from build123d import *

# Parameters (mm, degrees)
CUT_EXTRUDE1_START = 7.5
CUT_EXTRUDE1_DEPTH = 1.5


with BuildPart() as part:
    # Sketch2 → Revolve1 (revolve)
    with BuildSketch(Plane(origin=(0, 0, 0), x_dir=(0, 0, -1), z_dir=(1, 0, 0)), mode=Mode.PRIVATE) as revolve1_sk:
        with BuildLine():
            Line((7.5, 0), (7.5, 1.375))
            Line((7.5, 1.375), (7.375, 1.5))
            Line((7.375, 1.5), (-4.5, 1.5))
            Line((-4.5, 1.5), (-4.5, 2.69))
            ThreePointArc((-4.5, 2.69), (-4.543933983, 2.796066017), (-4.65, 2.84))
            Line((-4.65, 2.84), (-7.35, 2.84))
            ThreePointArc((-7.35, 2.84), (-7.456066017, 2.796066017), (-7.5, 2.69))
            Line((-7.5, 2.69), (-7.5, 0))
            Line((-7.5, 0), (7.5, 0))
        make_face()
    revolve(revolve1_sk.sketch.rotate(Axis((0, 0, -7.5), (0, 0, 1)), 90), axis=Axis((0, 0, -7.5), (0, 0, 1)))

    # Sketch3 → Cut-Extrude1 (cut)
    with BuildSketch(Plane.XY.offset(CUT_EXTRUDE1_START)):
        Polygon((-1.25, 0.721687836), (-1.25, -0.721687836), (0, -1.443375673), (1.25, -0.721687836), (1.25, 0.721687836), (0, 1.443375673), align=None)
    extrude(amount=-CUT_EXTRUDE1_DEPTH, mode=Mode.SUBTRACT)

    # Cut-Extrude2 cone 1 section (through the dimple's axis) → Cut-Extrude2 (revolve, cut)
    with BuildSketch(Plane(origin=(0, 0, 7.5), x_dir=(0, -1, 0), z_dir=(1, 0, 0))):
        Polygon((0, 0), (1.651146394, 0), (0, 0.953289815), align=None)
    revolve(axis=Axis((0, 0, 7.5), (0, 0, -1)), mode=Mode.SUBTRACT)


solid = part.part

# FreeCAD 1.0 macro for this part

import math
import FreeCAD as App
import Part
import Sketcher

V = App.Vector
Q = App.Units.Quantity


def add_polygon(sketch, points):
    """Adds a closed chain of lines whose ends are joined by coincident constraints."""
    first, n = sketch.GeometryCount, len(points)
    for a, b in zip(points, points[1:] + points[:1]):
        sketch.addGeometry(Part.LineSegment(App.Vector(*a, 0), App.Vector(*b, 0)), False)
    for i in range(n):
        sketch.addConstraint(Sketcher.Constraint("Coincident", first + i, 2, first + (i + 1) % n, 1))

doc = App.newDocument("Part")
body = doc.addObject("PartDesign::Body", "Body")

# Sketch on YZ plane
sketch1 = body.newObject("Sketcher::SketchObject", "Sketch")
sketch1.AttachmentSupport = (doc.getObject("YZ_Plane"), [""])
sketch1.MapMode = "FlatFace"
sketch1.addGeometry(Part.LineSegment(V(0, -7.5, 0), V(1.38, -7.5, 0)), False)
sketch1.addGeometry(Part.LineSegment(V(1.38, -7.5, 0), V(1.5, -7.38, 0)), False)
sketch1.addGeometry(Part.LineSegment(V(1.5, -7.38, 0), V(1.5, 4.5, 0)), False)
sketch1.addGeometry(Part.LineSegment(V(1.5, 4.5, 0), V(2.69, 4.5, 0)), False)
sketch1.addGeometry(Part.ArcOfCircle(Part.Circle(V(2.69, 4.65, 0), V(0, 0, 1), 0.15), math.radians(-90), math.radians(0)), False)
sketch1.addGeometry(Part.LineSegment(V(2.84, 4.65, 0), V(2.84, 7.35, 0)), False)
sketch1.addGeometry(Part.ArcOfCircle(Part.Circle(V(2.69, 7.35, 0), V(0, 0, 1), 0.15), math.radians(0), math.radians(90)), False)
sketch1.addGeometry(Part.LineSegment(V(2.69, 7.5, 0), V(0, 7.5, 0)), False)
sketch1.addGeometry(Part.LineSegment(V(0, 7.5, 0), V(0, -7.5, 0)), False)
sketch1.addConstraint(Sketcher.Constraint("Coincident", 0, 2, 1, 1))
sketch1.addConstraint(Sketcher.Constraint("Coincident", 1, 2, 2, 1))
sketch1.addConstraint(Sketcher.Constraint("Coincident", 2, 2, 3, 1))
sketch1.addConstraint(Sketcher.Constraint("Tangent", 3, 2, 4, 1))
sketch1.addConstraint(Sketcher.Constraint("Tangent", 4, 2, 5, 1))
sketch1.addConstraint(Sketcher.Constraint("Tangent", 5, 2, 6, 1))
sketch1.addConstraint(Sketcher.Constraint("Tangent", 6, 2, 7, 1))
sketch1.addConstraint(Sketcher.Constraint("Coincident", 7, 2, 8, 1))
sketch1.addConstraint(Sketcher.Constraint("Coincident", 8, 2, 0, 1))
sketch1.addConstraint(Sketcher.Constraint("Horizontal", 0))
sketch1.addConstraint(Sketcher.Constraint("Vertical", 2))
sketch1.addConstraint(Sketcher.Constraint("Horizontal", 3))
sketch1.addConstraint(Sketcher.Constraint("Vertical", 5))
sketch1.addConstraint(Sketcher.Constraint("Horizontal", 7))
sketch1.addConstraint(Sketcher.Constraint("Vertical", 8))
sketch1.addConstraint(Sketcher.Constraint("Equal", 4, 6))
sketch1.addConstraint(Sketcher.Constraint("Symmetric", 7, 2, 8, 2, -1, 1))
sketch1.addConstraint(Sketcher.Constraint("DistanceY", 8, 2, 8, 1, Q("15 mm")))
sketch1.addConstraint(Sketcher.Constraint("Angle", 1, Q("45 deg")))
sketch1.addConstraint(Sketcher.Constraint("Radius", 4, Q("0.15 mm")))
sketch1.addConstraint(Sketcher.Constraint("DistanceY", 5, 1, 5, 2, Q("2.7 mm")))
sketch1.addConstraint(Sketcher.Constraint("DistanceX", 3, 1, 3, 2, Q("1.19 mm")))
sketch1.addConstraint(Sketcher.Constraint("DistanceX", 7, 2, 7, 1, Q("2.69 mm")))
sketch1.addConstraint(Sketcher.Constraint("DistanceX", 0, 1, 0, 2, Q("1.375 mm")))
revolution = body.newObject("PartDesign::Revolution", "Revolution")
revolution.Profile = sketch1
revolution.ReferenceAxis = (sketch1, ["V_Axis"])
revolution.Angle = 360

# Sketch on XY plane
sketch2 = body.newObject("Sketcher::SketchObject", "Sketch001")
sketch2.AttachmentSupport = (doc.getObject("XY_Plane"), [""])
sketch2.MapMode = "FlatFace"
sketch2.AttachmentOffset = App.Placement(V(0, 0, 7.5), App.Rotation())
add_polygon(sketch2, [(-1.2, 0.7), (-1.2, -0.7), (0, -1.4), (1.2, -0.7), (1.2, 0.7), (0, 1.4)])  # lines 0-5
sketch2.addConstraint(Sketcher.Constraint("Vertical", 0))
sketch2.addConstraint(Sketcher.Constraint("Vertical", 3))
sketch2.addConstraint(Sketcher.Constraint("Symmetric", 0, 2, 3, 2, -1, 1))
sketch2.addConstraint(Sketcher.Constraint("Symmetric", 1, 2, 4, 2, -1, 1))
sketch2.addConstraint(Sketcher.Constraint("PointOnObject", 1, 2, -2))
sketch2.addConstraint(Sketcher.Constraint("Parallel", 2, 5))
sketch2.addConstraint(Sketcher.Constraint("Horizontal", 0, 2, 2, 2))
sketch2.addConstraint(Sketcher.Constraint("Angle", 1, Q("-30 deg")))
sketch2.addConstraint(Sketcher.Constraint("DistanceX", 0, 2, 2, 2, Q("2.5 mm")))
sketch2.addConstraint(Sketcher.Constraint("DistanceY", 0, 2, 0, 1, Q("1.443376 mm")))
pocket1 = body.newObject("PartDesign::Pocket", "Pocket")
pocket1.Profile = sketch2
pocket1.Length = 1.5

# Sketch on YZ plane
sketch3 = body.newObject("Sketcher::SketchObject", "Sketch002")
sketch3.AttachmentSupport = (doc.getObject("YZ_Plane"), [""])
sketch3.MapMode = "FlatFace"
add_polygon(sketch3, [(0, 7.5), (-1.7, 7.5), (0, 6.5)])  # lines 0-2
sketch3.addConstraint(Sketcher.Constraint("Horizontal", 0))
sketch3.addConstraint(Sketcher.Constraint("Vertical", 2))
sketch3.addConstraint(Sketcher.Constraint("PointOnObject", 1, 2, -2))
sketch3.addConstraint(Sketcher.Constraint("Angle", 1, Q("-30 deg")))
sketch3.addConstraint(Sketcher.Constraint("DistanceY", -1, 1, 0, 2, Q("7.5 mm")))
sketch3.addConstraint(Sketcher.Constraint("DistanceY", 2, 1, 2, 2, Q("0.95329 mm")))
groove = body.newObject("PartDesign::Groove", "Groove")
groove.Profile = sketch3
groove.ReferenceAxis = (sketch3, ["V_Axis"])
groove.Angle = 360

doc.recompute()
